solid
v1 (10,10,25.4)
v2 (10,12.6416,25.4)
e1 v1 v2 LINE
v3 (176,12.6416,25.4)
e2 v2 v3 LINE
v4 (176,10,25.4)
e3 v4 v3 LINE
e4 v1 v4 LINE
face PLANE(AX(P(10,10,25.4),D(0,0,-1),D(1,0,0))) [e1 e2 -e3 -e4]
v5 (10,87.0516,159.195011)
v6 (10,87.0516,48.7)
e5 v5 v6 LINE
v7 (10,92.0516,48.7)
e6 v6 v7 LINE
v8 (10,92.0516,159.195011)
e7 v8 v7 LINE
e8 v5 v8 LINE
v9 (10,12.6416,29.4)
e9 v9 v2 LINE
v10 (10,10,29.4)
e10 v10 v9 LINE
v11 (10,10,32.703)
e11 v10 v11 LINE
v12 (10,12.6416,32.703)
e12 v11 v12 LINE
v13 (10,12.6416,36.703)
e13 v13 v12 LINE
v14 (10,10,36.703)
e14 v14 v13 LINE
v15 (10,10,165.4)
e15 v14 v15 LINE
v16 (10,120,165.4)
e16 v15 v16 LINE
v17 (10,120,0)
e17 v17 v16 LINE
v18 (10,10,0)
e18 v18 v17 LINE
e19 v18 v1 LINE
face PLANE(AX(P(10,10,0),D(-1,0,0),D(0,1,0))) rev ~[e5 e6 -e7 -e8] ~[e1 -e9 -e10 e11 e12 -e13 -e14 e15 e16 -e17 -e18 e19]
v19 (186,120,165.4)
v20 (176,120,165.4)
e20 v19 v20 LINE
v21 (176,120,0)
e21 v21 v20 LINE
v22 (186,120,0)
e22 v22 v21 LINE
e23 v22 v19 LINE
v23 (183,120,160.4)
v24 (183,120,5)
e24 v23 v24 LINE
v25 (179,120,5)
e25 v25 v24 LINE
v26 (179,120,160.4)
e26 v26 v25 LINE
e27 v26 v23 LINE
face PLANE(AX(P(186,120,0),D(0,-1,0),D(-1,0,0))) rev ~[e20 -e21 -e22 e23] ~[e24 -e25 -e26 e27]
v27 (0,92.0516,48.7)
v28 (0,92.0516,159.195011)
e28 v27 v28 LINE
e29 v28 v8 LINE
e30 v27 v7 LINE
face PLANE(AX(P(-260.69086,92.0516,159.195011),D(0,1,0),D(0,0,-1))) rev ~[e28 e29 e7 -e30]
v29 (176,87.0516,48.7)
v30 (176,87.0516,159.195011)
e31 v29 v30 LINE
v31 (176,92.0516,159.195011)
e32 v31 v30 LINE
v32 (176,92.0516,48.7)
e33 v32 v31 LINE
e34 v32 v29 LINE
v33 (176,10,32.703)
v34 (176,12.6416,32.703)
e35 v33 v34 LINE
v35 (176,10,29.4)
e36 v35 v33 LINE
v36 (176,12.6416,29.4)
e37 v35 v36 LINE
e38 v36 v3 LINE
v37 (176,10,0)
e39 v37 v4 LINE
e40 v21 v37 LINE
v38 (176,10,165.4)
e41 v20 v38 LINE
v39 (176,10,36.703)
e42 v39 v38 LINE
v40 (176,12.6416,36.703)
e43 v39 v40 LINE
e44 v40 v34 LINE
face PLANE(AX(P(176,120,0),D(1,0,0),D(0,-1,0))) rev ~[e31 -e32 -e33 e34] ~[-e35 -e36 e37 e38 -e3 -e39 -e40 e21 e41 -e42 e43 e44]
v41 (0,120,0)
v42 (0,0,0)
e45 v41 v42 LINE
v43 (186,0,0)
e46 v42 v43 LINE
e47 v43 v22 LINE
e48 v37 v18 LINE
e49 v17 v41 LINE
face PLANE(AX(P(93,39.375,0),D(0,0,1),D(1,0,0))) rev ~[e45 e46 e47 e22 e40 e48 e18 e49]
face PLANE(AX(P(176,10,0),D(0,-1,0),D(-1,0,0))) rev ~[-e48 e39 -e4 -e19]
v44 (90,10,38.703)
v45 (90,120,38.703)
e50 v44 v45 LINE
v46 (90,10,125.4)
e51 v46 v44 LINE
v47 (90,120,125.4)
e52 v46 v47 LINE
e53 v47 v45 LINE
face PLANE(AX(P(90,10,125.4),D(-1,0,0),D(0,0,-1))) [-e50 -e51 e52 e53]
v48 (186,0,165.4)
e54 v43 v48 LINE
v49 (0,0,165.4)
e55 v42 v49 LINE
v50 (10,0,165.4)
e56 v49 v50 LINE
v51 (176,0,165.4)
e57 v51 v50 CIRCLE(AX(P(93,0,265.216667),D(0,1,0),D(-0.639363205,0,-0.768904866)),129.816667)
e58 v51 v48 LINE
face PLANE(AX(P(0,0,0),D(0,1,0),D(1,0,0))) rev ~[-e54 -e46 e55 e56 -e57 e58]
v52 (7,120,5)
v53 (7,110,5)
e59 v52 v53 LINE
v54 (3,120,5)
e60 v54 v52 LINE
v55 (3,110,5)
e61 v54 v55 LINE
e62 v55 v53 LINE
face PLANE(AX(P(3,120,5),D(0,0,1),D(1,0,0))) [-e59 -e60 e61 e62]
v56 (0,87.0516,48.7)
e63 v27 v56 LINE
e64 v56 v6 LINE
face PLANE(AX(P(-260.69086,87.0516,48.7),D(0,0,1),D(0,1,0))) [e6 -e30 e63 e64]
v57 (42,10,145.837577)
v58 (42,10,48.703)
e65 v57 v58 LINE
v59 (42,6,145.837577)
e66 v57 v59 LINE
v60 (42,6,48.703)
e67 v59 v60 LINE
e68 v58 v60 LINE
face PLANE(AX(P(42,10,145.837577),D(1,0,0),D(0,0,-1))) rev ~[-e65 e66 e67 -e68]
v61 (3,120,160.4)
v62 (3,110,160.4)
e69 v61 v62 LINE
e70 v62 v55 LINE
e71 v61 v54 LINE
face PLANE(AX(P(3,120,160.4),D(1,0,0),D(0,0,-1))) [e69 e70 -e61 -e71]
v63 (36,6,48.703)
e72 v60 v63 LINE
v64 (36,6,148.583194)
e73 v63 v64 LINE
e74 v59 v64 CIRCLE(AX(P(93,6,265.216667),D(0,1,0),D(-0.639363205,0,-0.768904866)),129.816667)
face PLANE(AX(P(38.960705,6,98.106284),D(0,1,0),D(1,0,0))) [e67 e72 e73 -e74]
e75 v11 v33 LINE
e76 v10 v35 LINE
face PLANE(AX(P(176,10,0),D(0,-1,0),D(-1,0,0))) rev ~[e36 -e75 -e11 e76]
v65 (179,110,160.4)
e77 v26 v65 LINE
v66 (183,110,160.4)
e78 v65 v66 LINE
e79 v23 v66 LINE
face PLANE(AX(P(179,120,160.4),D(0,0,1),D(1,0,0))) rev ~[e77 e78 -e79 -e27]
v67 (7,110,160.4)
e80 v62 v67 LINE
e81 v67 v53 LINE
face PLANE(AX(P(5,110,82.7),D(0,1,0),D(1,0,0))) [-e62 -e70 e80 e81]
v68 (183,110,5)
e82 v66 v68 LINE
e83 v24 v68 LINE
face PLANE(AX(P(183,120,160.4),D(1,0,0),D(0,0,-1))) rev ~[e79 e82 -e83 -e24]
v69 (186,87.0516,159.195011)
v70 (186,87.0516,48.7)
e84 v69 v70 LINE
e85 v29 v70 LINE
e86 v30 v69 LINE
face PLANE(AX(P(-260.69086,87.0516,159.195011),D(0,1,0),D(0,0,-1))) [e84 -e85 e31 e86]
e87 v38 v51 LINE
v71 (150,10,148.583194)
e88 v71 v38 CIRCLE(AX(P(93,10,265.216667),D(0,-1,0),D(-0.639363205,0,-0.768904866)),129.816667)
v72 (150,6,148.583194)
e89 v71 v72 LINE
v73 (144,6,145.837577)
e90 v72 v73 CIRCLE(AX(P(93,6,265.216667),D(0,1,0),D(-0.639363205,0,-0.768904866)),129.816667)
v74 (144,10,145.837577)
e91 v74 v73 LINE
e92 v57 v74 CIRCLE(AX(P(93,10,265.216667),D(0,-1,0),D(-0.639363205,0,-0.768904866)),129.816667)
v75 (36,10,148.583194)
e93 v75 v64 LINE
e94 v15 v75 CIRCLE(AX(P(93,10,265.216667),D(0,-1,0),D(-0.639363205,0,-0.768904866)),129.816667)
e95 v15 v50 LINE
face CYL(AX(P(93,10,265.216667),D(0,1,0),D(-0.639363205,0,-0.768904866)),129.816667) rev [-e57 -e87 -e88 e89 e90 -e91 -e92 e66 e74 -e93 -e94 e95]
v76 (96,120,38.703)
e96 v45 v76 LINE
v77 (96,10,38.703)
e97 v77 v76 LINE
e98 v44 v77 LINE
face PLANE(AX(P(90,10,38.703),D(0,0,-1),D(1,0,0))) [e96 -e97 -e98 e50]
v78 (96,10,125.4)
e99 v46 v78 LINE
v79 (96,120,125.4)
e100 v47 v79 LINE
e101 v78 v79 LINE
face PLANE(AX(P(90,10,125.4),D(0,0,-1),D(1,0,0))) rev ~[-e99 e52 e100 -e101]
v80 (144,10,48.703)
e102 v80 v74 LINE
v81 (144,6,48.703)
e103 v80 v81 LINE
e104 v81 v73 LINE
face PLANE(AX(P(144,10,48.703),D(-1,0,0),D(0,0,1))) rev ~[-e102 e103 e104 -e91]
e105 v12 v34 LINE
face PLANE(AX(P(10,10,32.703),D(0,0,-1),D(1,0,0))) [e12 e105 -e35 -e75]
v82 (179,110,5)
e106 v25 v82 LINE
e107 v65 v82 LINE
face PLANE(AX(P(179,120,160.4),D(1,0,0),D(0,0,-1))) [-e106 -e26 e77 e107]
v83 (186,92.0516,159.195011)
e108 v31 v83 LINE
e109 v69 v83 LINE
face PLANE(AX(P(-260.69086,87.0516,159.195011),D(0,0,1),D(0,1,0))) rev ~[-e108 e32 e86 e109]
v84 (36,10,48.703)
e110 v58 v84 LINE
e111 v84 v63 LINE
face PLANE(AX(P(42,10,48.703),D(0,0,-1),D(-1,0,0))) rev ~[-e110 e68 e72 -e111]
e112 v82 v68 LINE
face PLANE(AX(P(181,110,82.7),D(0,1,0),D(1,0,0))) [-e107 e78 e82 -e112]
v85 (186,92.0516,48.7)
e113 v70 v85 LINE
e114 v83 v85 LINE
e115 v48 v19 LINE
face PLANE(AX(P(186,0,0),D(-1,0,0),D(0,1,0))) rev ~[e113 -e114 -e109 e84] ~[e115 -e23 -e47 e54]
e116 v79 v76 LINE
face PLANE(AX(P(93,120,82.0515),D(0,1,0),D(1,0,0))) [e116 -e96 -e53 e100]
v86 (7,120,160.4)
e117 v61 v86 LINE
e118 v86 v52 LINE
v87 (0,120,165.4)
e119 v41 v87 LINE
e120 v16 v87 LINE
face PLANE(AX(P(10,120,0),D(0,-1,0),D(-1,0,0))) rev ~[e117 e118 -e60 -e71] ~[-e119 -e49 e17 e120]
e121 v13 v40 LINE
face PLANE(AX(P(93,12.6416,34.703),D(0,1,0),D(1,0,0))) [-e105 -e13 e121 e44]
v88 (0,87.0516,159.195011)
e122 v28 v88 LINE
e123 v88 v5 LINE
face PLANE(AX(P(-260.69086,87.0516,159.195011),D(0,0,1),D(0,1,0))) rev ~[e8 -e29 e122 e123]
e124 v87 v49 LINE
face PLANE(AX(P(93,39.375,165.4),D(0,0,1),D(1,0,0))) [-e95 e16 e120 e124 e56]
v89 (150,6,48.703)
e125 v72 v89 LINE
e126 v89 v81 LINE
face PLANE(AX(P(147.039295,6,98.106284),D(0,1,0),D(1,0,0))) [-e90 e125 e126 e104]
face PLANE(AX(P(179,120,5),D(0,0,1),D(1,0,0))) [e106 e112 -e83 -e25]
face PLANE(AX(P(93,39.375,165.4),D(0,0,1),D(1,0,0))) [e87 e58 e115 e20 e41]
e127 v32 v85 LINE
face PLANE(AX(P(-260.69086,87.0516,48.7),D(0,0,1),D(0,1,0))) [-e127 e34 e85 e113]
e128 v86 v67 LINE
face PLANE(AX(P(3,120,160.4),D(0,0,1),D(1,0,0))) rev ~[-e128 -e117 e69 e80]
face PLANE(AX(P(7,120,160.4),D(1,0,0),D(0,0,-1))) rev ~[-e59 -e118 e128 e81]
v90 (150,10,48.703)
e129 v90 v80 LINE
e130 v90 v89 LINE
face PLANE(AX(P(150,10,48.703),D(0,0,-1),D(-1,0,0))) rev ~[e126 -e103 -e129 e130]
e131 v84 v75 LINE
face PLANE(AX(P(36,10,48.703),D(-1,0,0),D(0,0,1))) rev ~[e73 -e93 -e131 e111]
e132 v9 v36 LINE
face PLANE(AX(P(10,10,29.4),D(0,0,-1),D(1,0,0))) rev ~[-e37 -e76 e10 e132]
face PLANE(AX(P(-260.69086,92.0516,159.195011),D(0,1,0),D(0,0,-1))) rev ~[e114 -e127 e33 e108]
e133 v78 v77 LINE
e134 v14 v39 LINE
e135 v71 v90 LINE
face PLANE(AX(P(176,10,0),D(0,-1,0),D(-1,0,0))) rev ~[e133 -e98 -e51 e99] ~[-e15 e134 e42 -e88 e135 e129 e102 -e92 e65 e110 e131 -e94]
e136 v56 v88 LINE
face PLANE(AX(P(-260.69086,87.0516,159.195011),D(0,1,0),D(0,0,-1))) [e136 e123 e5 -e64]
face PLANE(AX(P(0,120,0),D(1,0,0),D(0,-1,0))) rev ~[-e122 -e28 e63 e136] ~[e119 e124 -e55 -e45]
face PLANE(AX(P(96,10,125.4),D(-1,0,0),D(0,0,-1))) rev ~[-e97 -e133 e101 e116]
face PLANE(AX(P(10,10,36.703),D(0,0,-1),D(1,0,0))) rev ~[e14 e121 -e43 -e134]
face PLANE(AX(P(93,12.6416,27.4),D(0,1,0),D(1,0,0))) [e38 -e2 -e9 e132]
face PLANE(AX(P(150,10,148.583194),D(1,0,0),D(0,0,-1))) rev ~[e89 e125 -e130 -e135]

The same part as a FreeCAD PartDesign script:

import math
import FreeCAD as App
import Part
import Sketcher


def add_polygon(sketch, points):
    """Adds a closed chain of lines whose ends are joined by coincident constraints."""
    first, n = sketch.GeometryCount, len(points)
    for a, b in zip(points, points[1:] + points[:1]):
        sketch.addGeometry(Part.LineSegment(App.Vector(*a, 0), App.Vector(*b, 0)), False)
    for i in range(n):
        sketch.addConstraint(Sketcher.Constraint("Coincident", first + i, 2, first + (i + 1) % n, 1))

doc = App.newDocument("Part")
body = doc.addObject("PartDesign::Body", "Body")

sketch1 = body.newObject("Sketcher::SketchObject", "Sketch")
sketch1.AttachmentSupport = (doc.getObject("XY_Plane"), [""])
sketch1.MapMode = "FlatFace"
add_polygon(sketch1, [(0, 120), (0, 0), (186, 0), (186, 120), (176, 120), (176, 10), (10, 10), (10, 120)])
sketch1.addConstraint([
    Sketcher.Constraint("Vertical", 0),
    Sketcher.Constraint("Horizontal", 1),
    Sketcher.Constraint("Vertical", 2),
    Sketcher.Constraint("Horizontal", 3),
    Sketcher.Constraint("Vertical", 4),
    Sketcher.Constraint("Horizontal", 5),
    Sketcher.Constraint("Vertical", 6),
    Sketcher.Constraint("Horizontal", 7),
    Sketcher.Constraint("Coincident", 0, 2, -1, 1),
    Sketcher.Constraint("Horizontal", 3, 2, 6, 2),
    Sketcher.Constraint("Equal", 3, 7),
    Sketcher.Constraint("DistanceX", 1, 1, 1, 2, 186.0),
    Sketcher.Constraint("DistanceX", 3, 2, 3, 1, 10.0),
    Sketcher.Constraint("DistanceY", 0, 2, 0, 1, 120.0),
    Sketcher.Constraint("DistanceY", 4, 2, 4, 1, 110.0),
])
pad1 = body.newObject("PartDesign::Pad", "Pad")
pad1.Profile = sketch1
pad1.Length = 165.4

sketch2 = body.newObject("Sketcher::SketchObject", "Sketch001")
sketch2.AttachmentSupport = (doc.getObject("XZ_Plane"), [""])
sketch2.MapMode = "FlatFace"
sketch2.AttachmentOffset = App.Placement(App.Vector(0, 0, -10), App.Rotation())
add_polygon(sketch2, [(10, 32.703), (10, 36.703), (176, 36.703), (176, 32.703)])
sketch2.addConstraint([
    Sketcher.Constraint("Vertical", 0),
    Sketcher.Constraint("Horizontal", 1),
    Sketcher.Constraint("Vertical", 2),
    Sketcher.Constraint("Horizontal", 3),
    Sketcher.Constraint("DistanceX", 1, 1, 1, 2, 166.0),
    Sketcher.Constraint("DistanceY", 0, 1, 0, 2, 4.0),
    Sketcher.Constraint("DistanceX", -1, 1, 0, 2, 10.0),
    Sketcher.Constraint("DistanceY", -1, 1, 0, 2, 36.703),
])
pad2 = body.newObject("PartDesign::Pad", "Pad001")
pad2.Profile = sketch2
pad2.Length = 2.6416
pad2.Reversed = True

sketch3 = body.newObject("Sketcher::SketchObject", "Sketch002")
sketch3.AttachmentSupport = (doc.getObject("YZ_Plane"), [""])
sketch3.MapMode = "FlatFace"
sketch3.AttachmentOffset = App.Placement(App.Vector(0, 0, 10), App.Rotation())
add_polygon(sketch3, [(92.0516, 159.195011), (87.0516, 159.195011), (87.0516, 48.7), (92.0516, 48.7)])
sketch3.addConstraint([
    Sketcher.Constraint("Horizontal", 0),
    Sketcher.Constraint("Vertical", 1),
    Sketcher.Constraint("Horizontal", 2),
    Sketcher.Constraint("Vertical", 3),
    Sketcher.Constraint("DistanceX", 0, 2, 0, 1, 5.0),
    Sketcher.Constraint("DistanceY", -1, 1, 1, 2, 48.7),
    Sketcher.Constraint("DistanceY", 1, 2, 1, 1, 110.495011),
    Sketcher.Constraint("DistanceX", -1, 1, 0, 2, 87.0516),
])
pocket1 = body.newObject("PartDesign::Pocket", "Pocket")
pocket1.Profile = sketch3
pocket1.Type = "ThroughAll"
pocket1.Midplane = True

sketch4 = body.newObject("Sketcher::SketchObject", "Sketch003")
sketch4.AttachmentSupport = (doc.getObject("XZ_Plane"), [""])
sketch4.MapMode = "FlatFace"
sketch4.AttachmentOffset = App.Placement(App.Vector(0, 0, -10), App.Rotation())
sketch4.addGeometry([
    Part.LineSegment(App.Vector(10, 165.4, 0), App.Vector(176, 165.4, 0)),
    Part.ArcOfCircle(Part.Circle(App.Vector(93, 265.216667, 0), App.Vector(0, 0, 1), 129.816667), math.radians(-129.744352), math.radians(-50.255648)),
], False)
sketch4.addConstraint([
    Sketcher.Constraint("Coincident", 0, 1, 1, 1),
    Sketcher.Constraint("Coincident", 1, 2, 0, 2),
    Sketcher.Constraint("Horizontal", 0),
    Sketcher.Constraint("DistanceX", 0, 1, 0, 2, 166.0),
    Sketcher.Constraint("DistanceX", -1, 1, 1, 3, 93.0),
    Sketcher.Constraint("DistanceY", -1, 1, 0, 1, 165.4),
    Sketcher.Constraint("Radius", 1, 129.816667),
])
pocket2 = body.newObject("PartDesign::Pocket", "Pocket001")
pocket2.Profile = sketch4
pocket2.Type = "ThroughAll"
pocket2.Reversed = True

sketch5 = body.newObject("Sketcher::SketchObject", "Sketch004")
sketch5.AttachmentSupport = (doc.getObject("XZ_Plane"), [""])
sketch5.MapMode = "FlatFace"
sketch5.AttachmentOffset = App.Placement(App.Vector(0, 0, -120), App.Rotation())
add_polygon(sketch5, [(3, 5), (3, 160.4), (7, 160.4), (7, 5)])
sketch5.addConstraint([
    Sketcher.Constraint("Vertical", 0),
    Sketcher.Constraint("Horizontal", 1),
    Sketcher.Constraint("Vertical", 2),
    Sketcher.Constraint("Horizontal", 3),
    Sketcher.Constraint("DistanceX", 1, 1, 1, 2, 4.0),
    Sketcher.Constraint("DistanceY", 0, 1, 0, 2, 155.4),
    Sketcher.Constraint("DistanceX", -1, 1, 0, 2, 3.0),
    Sketcher.Constraint("DistanceY", -1, 1, 2, 2, 5.0),
])
pocket3 = body.newObject("PartDesign::Pocket", "Pocket002")
pocket3.Profile = sketch5
pocket3.Length = 10
pocket3.Reversed = True

sketch6 = body.newObject("Sketcher::SketchObject", "Sketch005")
sketch6.AttachmentSupport = (doc.getObject("XZ_Plane"), [""])
sketch6.MapMode = "FlatFace"
sketch6.AttachmentOffset = App.Placement(App.Vector(0, 0, -120), App.Rotation())
add_polygon(sketch6, [(179, 5), (179, 160.4), (183, 160.4), (183, 5)])
sketch6.addConstraint([
    Sketcher.Constraint("Vertical", 0),
    Sketcher.Constraint("Horizontal", 1),
    Sketcher.Constraint("Vertical", 2),
    Sketcher.Constraint("Horizontal", 3),
    Sketcher.Constraint("DistanceX", 1, 1, 1, 2, 4.0),
    Sketcher.Constraint("DistanceY", 0, 1, 0, 2, 155.4),
    Sketcher.Constraint("DistanceX", -1, 1, 0, 2, 179.0),
    Sketcher.Constraint("DistanceY", -1, 1, 2, 2, 5.0),
])
pocket4 = body.newObject("PartDesign::Pocket", "Pocket003")
pocket4.Profile = sketch6
pocket4.Length = 10
pocket4.Reversed = True

sketch7 = body.newObject("Sketcher::SketchObject", "Sketch006")
sketch7.AttachmentSupport = (doc.getObject("XZ_Plane"), [""])
sketch7.MapMode = "FlatFace"
sketch7.AttachmentOffset = App.Placement(App.Vector(0, 0, -10), App.Rotation())
add_polygon(sketch7, [(90, 38.703), (90, 125.4), (96, 125.4), (96, 38.703)])
sketch7.addConstraint([
    Sketcher.Constraint("Vertical", 0),
    Sketcher.Constraint("Horizontal", 1),
    Sketcher.Constraint("Vertical", 2),
    Sketcher.Constraint("Horizontal", 3),
    Sketcher.Constraint("DistanceX", 1, 1, 1, 2, 6.0),
    Sketcher.Constraint("DistanceX", -1, 1, 0, 2, 90.0),
    Sketcher.Constraint("DistanceY", -1, 1, 0, 2, 125.4),
    Sketcher.Constraint("DistanceY", 0, 1, 0, 2, 86.697),
])
pad3 = body.newObject("PartDesign::Pad", "Pad002")
pad3.Profile = sketch7
pad3.Length = 110
pad3.Reversed = True

sketch8 = body.newObject("Sketcher::SketchObject", "Sketch007")
sketch8.AttachmentSupport = (doc.getObject("XZ_Plane"), [""])
sketch8.MapMode = "FlatFace"
sketch8.AttachmentOffset = App.Placement(App.Vector(0, 0, -10), App.Rotation())
add_polygon(sketch8, [(36, 48.703), (36, 148.583194), (42, 145.837577), (42, 48.703)])
add_polygon(sketch8, [(144, 145.837577), (150, 148.583194), (150, 48.703), (144, 48.703)])
sketch8.addConstraint([
    Sketcher.Constraint("Vertical", 0),
    Sketcher.Constraint("Vertical", 2),
    Sketcher.Constraint("Horizontal", 3),
    Sketcher.Constraint("Vertical", 5),
    Sketcher.Constraint("Horizontal", 6),
    Sketcher.Constraint("Vertical", 7),
    Sketcher.Constraint("Horizontal", 0, 2, 4, 2),
    Sketcher.Constraint("Horizontal", 3, 2, 5, 2),
    Sketcher.Constraint("Horizontal", 1, 2, 7, 2),
    Sketcher.Constraint("Equal", 3, 6),
    Sketcher.Constraint("DistanceX", 3, 2, 3, 1, 6.0),
    Sketcher.Constraint("DistanceX", -1, 1, 0, 2, 36.0),
    Sketcher.Constraint("DistanceX", -1, 1, 4, 2, 150.0),
    Sketcher.Constraint("DistanceY", -1, 1, 2, 2, 48.703),
    Sketcher.Constraint("DistanceY", 0, 1, 0, 2, 99.880194),
    Sketcher.Constraint("DistanceY", 2, 2, 2, 1, 97.134577),
])
pocket5 = body.newObject("PartDesign::Pocket", "Pocket004")
pocket5.Profile = sketch8
pocket5.Length = 4
pocket5.Reversed = True

sketch9 = body.newObject("Sketcher::SketchObject", "Sketch008")
sketch9.AttachmentSupport = (doc.getObject("XZ_Plane"), [""])
sketch9.MapMode = "FlatFace"
sketch9.AttachmentOffset = App.Placement(App.Vector(0, 0, -10), App.Rotation())
add_polygon(sketch9, [(10, 25.4), (10, 29.4), (176, 29.4), (176, 25.4)])
sketch9.addConstraint([
    Sketcher.Constraint("Vertical", 0),
    Sketcher.Constraint("Horizontal", 1),
    Sketcher.Constraint("Vertical", 2),
    Sketcher.Constraint("Horizontal", 3),
    Sketcher.Constraint("DistanceX", 1, 1, 1, 2, 166.0),
    Sketcher.Constraint("DistanceY", 0, 1, 0, 2, 4.0),
    Sketcher.Constraint("DistanceX", -1, 1, 0, 2, 10.0),
    Sketcher.Constraint("DistanceY", -1, 1, 0, 2, 29.4),
])
pad4 = body.newObject("PartDesign::Pad", "Pad003")
pad4.Profile = sketch9
pad4.Length = 2.6416
pad4.Reversed = True

doc.recompute()
